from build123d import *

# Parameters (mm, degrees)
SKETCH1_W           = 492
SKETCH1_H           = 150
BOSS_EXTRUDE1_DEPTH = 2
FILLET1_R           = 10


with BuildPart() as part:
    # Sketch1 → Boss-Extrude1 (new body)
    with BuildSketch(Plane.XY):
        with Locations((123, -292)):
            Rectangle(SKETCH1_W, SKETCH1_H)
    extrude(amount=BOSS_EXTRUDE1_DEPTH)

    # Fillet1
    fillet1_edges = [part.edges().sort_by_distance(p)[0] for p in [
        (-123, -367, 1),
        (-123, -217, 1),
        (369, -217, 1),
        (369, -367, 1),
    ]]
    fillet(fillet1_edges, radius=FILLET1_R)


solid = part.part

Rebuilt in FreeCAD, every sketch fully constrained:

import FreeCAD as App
import Part
import Sketcher
Q = App.Units.Quantity


def edges_at(feature, points):
    """Names of the edges that pass closest to the given points."""
    edges = feature.Shape.Edges
    near = lambda p: min(range(len(edges)), key=lambda i: edges[i].distToShape(Part.Vertex(*p))[0])
    return sorted({f"Edge{near(p) + 1}" for p in points})

doc = App.newDocument("Part")
body = doc.addObject("PartDesign::Body", "Body")

# Sketch on XY plane
sketch1 = body.newObject("Sketcher::SketchObject", "Sketch")
sketch1.AttachmentSupport = (doc.getObject("XY_Plane"), [""])
sketch1.MapMode = "FlatFace"
sketch1.addGeometry([
    Part.LineSegment(App.Vector(-123, -217, 0), App.Vector(-123, -367, 0)),
    Part.LineSegment(App.Vector(-123, -367, 0), App.Vector(369, -367, 0)),
    Part.LineSegment(App.Vector(369, -367, 0), App.Vector(369, -217, 0)),
    Part.LineSegment(App.Vector(369, -217, 0), App.Vector(-123, -217, 0)),
], False)
sketch1.addConstraint([
    Sketcher.Constraint("Coincident", 0, 2, 1, 1),
    Sketcher.Constraint("Coincident", 1, 2, 2, 1),
    Sketcher.Constraint("Coincident", 2, 2, 3, 1),
    Sketcher.Constraint("Coincident", 3, 2, 0, 1),
    Sketcher.Constraint("Vertical", 0),
    Sketcher.Constraint("Horizontal", 1),
    Sketcher.Constraint("Vertical", 2),
    Sketcher.Constraint("Horizontal", 3),
    Sketcher.Constraint("DistanceX", 1, 1, 1, 2, Q("492 mm")),
    Sketcher.Constraint("DistanceY", 0, 2, 0, 1, Q("150 mm")),
    Sketcher.Constraint("DistanceX", 0, 2, -1, 1, Q("123 mm")),
    Sketcher.Constraint("DistanceY", 0, 2, -1, 1, Q("367 mm")),
])
pad1 = body.newObject("PartDesign::Pad", "Pad")
pad1.Profile = sketch1
pad1.Length = 2
doc.recompute()

fillet = body.newObject("PartDesign::Fillet", "Fillet")
fillet.Base = (pad1, edges_at(pad1, [
    (-123, -367, 1),
    (-123, -217, 1),
    (369, -217, 1),
    (369, -367, 1),
]))
fillet.Radius = 10

doc.recompute()
